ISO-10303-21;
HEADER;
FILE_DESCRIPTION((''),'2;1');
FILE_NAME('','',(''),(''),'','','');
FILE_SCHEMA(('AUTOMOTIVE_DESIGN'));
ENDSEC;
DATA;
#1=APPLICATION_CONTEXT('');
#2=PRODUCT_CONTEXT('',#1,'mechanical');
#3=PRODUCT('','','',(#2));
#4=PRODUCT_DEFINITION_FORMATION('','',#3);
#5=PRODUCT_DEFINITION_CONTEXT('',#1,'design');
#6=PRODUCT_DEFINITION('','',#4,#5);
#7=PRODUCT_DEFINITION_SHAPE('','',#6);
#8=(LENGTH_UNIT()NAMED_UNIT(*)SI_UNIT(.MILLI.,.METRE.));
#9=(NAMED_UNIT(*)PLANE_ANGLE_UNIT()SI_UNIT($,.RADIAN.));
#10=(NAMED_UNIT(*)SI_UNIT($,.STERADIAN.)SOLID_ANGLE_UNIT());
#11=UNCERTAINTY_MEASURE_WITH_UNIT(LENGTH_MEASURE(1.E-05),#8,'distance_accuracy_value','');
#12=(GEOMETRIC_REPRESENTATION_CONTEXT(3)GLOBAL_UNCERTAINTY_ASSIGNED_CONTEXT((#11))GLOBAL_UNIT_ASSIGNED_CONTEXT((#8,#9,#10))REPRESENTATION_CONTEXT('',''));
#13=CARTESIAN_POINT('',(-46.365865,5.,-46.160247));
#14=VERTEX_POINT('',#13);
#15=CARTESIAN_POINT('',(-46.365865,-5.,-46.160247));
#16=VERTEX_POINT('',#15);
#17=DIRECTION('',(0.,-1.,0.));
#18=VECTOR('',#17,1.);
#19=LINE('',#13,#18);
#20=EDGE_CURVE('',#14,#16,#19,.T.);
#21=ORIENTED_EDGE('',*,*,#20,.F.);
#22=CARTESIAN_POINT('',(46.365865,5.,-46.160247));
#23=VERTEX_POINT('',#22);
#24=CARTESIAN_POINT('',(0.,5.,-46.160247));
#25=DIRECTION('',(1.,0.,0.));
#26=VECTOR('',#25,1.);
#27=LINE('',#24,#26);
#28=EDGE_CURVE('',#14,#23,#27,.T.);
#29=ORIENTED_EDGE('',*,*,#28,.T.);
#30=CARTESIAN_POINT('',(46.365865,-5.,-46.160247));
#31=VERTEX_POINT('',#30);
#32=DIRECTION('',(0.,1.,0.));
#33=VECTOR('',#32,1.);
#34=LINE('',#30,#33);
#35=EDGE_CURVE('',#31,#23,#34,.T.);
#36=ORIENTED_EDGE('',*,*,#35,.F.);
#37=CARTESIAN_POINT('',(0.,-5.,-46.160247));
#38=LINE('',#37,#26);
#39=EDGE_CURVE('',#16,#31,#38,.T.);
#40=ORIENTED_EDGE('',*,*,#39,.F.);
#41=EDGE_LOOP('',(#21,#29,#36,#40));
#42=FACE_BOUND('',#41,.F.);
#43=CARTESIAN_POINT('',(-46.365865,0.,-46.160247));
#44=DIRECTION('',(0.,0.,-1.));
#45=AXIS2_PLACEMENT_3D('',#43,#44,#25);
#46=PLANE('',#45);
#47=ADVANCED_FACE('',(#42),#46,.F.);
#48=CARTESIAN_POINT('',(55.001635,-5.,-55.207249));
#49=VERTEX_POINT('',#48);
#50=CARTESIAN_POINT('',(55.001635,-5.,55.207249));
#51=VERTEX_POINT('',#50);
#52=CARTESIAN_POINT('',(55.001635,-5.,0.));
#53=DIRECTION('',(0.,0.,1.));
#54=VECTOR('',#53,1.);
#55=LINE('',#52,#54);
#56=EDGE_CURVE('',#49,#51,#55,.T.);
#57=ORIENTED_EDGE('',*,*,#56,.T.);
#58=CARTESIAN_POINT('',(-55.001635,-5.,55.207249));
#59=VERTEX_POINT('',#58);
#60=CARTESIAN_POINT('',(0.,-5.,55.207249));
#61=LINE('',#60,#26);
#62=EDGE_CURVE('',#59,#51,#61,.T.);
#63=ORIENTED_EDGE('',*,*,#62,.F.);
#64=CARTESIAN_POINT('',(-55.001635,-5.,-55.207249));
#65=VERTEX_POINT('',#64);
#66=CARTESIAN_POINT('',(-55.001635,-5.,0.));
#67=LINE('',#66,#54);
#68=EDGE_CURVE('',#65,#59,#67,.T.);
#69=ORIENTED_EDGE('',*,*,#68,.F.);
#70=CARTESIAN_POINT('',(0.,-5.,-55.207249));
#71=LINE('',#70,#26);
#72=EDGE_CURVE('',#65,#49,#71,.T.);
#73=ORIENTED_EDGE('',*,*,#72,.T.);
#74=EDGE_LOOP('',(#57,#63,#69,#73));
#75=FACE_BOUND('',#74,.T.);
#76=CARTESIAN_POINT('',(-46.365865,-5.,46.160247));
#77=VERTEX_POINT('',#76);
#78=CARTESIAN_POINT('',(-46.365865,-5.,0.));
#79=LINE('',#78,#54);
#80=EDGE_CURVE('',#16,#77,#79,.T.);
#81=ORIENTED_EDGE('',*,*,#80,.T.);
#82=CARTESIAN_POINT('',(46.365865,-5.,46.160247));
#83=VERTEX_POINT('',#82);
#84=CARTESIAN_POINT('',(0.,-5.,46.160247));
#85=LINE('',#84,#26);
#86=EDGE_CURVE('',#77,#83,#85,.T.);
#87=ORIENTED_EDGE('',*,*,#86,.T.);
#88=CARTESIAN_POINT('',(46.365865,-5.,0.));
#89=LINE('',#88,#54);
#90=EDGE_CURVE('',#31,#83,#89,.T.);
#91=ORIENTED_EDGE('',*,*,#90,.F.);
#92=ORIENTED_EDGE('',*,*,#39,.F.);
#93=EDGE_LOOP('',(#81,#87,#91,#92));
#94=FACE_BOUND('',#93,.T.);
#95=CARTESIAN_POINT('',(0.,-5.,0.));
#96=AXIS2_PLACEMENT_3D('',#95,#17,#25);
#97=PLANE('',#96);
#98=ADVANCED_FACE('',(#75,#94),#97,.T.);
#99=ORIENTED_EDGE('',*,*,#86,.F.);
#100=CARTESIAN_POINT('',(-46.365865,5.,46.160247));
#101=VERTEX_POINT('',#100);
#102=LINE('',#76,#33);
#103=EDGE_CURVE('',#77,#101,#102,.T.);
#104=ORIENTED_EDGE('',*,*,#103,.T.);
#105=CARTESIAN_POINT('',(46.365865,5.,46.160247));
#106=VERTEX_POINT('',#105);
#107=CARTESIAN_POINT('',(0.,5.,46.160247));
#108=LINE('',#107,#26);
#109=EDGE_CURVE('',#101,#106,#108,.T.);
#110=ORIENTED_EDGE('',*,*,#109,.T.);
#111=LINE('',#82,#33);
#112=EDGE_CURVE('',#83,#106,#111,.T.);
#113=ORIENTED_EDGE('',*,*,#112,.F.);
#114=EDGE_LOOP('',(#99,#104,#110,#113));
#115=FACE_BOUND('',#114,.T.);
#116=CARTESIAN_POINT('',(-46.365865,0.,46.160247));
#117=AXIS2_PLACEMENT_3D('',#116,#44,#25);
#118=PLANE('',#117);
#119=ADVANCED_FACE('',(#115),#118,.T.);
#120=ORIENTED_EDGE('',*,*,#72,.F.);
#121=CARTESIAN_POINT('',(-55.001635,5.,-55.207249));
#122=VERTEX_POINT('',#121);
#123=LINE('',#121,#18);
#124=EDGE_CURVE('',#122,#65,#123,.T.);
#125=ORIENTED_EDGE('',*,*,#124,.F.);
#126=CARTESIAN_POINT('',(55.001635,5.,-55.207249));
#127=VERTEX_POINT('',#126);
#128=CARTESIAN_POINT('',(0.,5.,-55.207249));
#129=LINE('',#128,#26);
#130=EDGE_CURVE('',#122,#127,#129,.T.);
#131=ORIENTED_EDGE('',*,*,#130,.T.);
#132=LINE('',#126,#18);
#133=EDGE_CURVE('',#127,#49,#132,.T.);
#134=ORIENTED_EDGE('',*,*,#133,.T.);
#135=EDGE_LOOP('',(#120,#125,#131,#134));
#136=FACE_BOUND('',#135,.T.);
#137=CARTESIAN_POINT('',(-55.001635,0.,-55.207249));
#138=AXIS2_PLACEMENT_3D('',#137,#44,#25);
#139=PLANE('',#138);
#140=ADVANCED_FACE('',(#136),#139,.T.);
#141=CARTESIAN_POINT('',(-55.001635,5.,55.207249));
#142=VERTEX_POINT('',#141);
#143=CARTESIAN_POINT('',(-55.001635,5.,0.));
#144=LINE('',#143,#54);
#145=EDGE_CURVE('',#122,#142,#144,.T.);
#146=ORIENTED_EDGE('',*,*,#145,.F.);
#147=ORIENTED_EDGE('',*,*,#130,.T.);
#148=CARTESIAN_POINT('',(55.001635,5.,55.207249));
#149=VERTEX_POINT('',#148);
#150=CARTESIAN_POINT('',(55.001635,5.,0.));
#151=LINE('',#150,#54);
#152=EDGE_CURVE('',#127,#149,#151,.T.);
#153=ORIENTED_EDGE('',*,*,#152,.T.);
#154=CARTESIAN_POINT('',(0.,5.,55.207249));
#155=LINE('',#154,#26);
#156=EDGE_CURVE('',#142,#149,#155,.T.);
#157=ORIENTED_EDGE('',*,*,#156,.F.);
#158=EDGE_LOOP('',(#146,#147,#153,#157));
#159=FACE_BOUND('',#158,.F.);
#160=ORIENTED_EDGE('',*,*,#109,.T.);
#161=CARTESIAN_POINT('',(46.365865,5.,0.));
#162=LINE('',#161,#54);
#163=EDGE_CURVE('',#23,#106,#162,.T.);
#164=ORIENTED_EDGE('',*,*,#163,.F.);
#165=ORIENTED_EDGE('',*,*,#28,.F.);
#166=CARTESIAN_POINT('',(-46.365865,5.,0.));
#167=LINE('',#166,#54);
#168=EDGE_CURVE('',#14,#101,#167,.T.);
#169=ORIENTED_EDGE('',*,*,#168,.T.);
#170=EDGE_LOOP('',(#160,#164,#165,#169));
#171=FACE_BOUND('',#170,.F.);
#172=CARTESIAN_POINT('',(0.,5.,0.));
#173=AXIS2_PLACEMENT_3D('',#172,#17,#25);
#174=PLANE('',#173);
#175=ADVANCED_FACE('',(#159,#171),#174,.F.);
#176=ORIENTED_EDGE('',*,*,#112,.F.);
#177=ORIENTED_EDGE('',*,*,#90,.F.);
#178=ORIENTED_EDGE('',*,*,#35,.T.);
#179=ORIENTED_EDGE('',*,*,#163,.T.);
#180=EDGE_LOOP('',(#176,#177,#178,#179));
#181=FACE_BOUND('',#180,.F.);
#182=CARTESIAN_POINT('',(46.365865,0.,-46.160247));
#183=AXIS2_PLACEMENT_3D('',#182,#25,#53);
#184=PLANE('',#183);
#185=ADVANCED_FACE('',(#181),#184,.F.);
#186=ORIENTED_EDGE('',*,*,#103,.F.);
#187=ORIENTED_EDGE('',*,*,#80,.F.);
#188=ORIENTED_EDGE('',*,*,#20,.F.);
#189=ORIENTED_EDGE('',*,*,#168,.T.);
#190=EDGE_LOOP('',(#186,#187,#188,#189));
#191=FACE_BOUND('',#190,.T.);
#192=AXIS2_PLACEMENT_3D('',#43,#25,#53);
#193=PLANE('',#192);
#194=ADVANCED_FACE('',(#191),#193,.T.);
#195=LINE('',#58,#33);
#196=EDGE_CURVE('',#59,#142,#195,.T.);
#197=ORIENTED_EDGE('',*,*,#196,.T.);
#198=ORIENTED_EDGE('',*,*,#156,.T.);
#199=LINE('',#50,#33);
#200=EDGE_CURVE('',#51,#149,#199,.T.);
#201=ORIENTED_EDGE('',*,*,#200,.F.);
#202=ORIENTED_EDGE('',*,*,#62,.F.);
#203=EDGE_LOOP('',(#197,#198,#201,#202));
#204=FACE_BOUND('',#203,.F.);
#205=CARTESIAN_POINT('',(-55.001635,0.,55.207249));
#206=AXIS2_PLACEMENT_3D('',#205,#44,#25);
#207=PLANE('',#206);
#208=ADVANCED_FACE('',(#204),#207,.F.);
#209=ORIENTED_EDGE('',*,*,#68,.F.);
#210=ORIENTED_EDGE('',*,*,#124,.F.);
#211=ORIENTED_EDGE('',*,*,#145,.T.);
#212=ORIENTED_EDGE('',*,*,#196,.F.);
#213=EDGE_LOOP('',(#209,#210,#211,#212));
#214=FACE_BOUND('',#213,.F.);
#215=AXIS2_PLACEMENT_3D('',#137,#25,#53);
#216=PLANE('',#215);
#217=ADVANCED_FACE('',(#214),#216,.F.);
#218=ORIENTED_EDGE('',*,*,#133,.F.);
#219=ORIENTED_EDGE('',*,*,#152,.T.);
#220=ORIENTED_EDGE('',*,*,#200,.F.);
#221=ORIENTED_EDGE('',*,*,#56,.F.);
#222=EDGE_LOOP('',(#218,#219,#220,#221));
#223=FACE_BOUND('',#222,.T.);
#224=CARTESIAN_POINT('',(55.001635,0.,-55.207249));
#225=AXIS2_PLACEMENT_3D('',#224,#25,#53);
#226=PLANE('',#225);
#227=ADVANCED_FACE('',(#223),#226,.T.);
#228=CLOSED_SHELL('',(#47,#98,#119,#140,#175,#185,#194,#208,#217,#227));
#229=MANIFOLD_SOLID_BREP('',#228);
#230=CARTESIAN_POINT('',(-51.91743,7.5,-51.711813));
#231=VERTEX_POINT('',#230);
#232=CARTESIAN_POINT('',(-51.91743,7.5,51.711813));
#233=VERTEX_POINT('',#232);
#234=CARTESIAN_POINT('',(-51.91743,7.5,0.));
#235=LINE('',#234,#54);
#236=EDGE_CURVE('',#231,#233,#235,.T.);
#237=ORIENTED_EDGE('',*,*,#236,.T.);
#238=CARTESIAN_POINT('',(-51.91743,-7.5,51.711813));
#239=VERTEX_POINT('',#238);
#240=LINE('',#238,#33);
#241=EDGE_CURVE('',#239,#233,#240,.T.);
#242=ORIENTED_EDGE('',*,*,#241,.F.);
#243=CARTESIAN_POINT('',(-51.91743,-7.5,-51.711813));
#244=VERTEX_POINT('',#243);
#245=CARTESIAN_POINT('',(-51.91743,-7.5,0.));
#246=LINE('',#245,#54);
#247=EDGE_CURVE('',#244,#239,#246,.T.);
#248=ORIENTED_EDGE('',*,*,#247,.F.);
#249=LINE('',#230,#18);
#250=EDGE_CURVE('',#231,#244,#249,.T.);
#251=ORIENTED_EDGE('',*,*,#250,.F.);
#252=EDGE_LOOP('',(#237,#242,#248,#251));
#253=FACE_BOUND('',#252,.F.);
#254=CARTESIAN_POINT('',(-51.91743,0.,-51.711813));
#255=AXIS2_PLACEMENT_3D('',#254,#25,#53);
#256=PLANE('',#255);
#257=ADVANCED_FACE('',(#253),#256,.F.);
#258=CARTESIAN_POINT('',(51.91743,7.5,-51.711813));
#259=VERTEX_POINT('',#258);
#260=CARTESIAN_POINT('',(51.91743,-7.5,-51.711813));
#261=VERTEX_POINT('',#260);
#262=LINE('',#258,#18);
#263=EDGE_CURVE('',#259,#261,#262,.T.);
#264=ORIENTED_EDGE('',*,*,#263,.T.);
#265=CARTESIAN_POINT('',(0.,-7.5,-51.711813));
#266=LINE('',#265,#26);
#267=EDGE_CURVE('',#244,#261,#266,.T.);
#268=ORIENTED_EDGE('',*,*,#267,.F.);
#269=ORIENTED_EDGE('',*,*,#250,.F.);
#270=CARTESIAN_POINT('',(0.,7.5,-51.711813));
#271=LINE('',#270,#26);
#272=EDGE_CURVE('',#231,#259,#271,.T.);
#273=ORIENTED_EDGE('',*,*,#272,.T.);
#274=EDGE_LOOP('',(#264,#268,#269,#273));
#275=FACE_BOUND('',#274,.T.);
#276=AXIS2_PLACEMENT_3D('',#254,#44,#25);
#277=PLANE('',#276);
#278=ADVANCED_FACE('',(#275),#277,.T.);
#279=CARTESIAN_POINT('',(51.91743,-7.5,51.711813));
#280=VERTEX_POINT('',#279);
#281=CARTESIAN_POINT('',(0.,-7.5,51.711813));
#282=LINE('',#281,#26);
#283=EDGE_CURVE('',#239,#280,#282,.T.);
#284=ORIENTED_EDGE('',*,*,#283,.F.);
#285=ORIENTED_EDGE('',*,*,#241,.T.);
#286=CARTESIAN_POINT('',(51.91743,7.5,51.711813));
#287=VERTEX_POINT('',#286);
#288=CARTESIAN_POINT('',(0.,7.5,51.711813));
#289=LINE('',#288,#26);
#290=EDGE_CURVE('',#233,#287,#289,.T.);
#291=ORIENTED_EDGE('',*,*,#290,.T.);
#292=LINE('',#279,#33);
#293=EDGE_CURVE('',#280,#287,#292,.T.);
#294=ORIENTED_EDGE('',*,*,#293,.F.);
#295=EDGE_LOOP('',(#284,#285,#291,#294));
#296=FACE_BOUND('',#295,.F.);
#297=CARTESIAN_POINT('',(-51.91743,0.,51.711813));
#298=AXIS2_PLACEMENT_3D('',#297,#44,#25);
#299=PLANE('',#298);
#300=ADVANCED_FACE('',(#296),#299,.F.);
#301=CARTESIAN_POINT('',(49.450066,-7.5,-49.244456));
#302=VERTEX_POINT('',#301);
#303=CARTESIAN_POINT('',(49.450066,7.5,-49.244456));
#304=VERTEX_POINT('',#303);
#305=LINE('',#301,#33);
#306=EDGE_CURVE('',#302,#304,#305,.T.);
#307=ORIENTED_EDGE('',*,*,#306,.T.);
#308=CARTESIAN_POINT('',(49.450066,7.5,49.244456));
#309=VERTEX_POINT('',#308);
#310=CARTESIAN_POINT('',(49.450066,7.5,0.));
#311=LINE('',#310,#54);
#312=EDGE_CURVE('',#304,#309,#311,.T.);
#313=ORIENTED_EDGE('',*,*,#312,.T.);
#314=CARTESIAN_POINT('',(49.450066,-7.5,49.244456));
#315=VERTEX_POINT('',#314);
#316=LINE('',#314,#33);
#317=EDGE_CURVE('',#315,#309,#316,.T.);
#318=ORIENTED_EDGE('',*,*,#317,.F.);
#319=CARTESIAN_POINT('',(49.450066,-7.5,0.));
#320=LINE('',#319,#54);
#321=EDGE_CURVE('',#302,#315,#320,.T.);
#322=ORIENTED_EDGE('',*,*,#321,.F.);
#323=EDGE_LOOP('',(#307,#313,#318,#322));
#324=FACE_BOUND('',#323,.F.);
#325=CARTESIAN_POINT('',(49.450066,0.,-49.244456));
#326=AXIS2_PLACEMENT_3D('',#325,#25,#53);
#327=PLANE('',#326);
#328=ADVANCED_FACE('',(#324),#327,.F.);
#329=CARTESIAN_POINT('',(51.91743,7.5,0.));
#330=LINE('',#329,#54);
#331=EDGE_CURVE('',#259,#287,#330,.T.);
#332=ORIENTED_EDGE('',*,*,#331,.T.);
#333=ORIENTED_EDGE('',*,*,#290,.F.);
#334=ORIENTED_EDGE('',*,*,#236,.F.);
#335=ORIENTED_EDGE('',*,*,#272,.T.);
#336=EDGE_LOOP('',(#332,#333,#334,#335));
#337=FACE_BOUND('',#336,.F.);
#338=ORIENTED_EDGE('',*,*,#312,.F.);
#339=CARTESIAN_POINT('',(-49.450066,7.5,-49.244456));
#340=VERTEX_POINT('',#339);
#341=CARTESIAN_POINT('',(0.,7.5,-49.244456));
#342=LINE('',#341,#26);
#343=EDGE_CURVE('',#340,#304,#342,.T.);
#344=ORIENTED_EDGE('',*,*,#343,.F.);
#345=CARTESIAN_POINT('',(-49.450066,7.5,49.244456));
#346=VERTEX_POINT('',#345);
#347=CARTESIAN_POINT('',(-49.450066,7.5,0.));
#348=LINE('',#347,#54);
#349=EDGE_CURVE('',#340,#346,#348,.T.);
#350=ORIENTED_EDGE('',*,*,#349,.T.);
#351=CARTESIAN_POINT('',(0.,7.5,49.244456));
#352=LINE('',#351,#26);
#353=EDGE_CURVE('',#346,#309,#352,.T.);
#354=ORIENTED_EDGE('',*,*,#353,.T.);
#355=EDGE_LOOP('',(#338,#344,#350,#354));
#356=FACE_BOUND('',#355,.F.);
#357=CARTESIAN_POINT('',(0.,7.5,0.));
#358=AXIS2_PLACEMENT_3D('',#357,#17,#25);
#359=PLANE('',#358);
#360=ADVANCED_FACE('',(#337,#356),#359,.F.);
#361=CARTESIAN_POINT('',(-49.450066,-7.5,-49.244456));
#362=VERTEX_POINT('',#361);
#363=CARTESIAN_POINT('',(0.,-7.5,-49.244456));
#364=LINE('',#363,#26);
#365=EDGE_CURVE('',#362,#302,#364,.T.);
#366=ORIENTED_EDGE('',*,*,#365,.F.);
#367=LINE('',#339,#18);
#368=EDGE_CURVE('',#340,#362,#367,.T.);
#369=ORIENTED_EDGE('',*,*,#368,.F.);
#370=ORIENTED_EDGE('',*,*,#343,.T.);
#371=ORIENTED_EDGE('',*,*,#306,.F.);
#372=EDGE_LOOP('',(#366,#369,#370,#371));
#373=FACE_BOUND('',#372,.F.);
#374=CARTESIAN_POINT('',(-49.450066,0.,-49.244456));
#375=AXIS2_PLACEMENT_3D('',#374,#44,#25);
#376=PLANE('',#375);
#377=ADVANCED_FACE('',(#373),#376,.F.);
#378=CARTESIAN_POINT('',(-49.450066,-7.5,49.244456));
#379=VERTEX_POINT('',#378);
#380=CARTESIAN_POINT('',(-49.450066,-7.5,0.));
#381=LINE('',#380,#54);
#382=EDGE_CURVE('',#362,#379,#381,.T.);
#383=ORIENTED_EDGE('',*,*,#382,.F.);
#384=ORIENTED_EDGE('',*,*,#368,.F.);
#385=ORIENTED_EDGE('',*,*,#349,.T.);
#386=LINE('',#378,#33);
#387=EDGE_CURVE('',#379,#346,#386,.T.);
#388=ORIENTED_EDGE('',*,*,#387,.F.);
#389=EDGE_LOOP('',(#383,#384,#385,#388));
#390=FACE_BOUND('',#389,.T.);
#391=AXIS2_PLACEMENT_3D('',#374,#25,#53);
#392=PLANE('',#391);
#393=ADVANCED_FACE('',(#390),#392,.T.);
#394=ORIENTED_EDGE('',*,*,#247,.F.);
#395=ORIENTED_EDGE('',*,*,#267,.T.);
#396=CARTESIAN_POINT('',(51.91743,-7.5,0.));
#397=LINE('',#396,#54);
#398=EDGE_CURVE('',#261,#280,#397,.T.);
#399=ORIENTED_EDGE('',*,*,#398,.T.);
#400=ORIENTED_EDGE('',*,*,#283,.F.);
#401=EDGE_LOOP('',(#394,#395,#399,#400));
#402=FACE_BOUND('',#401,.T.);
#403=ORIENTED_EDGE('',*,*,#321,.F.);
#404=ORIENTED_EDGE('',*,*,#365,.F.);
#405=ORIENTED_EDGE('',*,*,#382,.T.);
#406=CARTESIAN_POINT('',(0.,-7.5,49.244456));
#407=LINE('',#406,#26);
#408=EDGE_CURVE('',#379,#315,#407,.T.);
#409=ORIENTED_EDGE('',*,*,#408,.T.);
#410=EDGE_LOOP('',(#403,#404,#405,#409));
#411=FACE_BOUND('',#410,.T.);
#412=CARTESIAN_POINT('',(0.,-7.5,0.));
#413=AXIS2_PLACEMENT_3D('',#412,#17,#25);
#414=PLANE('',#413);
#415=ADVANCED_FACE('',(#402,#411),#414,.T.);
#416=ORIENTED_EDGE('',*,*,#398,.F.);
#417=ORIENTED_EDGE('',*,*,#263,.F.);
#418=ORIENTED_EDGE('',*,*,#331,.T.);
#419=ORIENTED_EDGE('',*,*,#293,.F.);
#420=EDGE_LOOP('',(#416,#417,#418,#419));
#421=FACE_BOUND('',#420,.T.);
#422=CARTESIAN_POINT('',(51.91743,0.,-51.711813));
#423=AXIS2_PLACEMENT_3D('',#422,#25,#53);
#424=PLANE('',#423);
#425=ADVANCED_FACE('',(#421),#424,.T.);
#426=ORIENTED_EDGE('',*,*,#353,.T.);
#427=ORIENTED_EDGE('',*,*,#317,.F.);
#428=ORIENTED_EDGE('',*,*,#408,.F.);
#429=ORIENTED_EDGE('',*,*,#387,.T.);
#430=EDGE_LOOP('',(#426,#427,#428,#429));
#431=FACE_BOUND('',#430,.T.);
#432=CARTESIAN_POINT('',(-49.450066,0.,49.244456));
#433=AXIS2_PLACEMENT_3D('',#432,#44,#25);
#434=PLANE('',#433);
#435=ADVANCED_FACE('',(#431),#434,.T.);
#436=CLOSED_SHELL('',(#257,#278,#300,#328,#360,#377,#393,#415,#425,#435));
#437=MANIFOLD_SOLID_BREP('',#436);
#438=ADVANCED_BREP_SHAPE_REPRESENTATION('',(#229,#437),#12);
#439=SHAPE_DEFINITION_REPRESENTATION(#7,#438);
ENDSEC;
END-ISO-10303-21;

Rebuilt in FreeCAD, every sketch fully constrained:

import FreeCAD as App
import Part
import Sketcher


def add_polygon(sketch, points):
    """Adds a closed chain of lines whose ends are joined by coincident constraints."""
    first, n = sketch.GeometryCount, len(points)
    for a, b in zip(points, points[1:] + points[:1]):
        sketch.addGeometry(Part.LineSegment(App.Vector(*a, 0), App.Vector(*b, 0)), False)
    for i in range(n):
        sketch.addConstraint(Sketcher.Constraint("Coincident", first + i, 2, first + (i + 1) % n, 1))

doc = App.newDocument("Part")
params = doc.addObject("Spreadsheet::Sheet", "Params")
for row, (alias, value) in enumerate([
    ("pad1_length", "15 mm"),
    ("pad2_length", "10 mm"),
], start=1):
    params.set(f"A{row}", alias)
    params.set(f"B{row}", "=" + value)
    params.setAlias(f"B{row}", alias)

body = doc.addObject("PartDesign::Body", "Body")

sketch1 = doc.addObject("Sketcher::SketchObject", "Sketch")
body.addObject(sketch1)
sketch1.AttachmentSupport = (doc.XZ_Plane, [""])
sketch1.MapMode = "FlatFace"
add_polygon(sketch1, [(-52, 52), (-52, -52), (52, -52), (52, 52)])
add_polygon(sketch1, [(49, -49), (-49, -49), (-49, 49), (49, 49)])
sketch1.addConstraint(Sketcher.Constraint("Vertical", 0))
sketch1.addConstraint(Sketcher.Constraint("Horizontal", 1))
sketch1.addConstraint(Sketcher.Constraint("Vertical", 2))
sketch1.addConstraint(Sketcher.Constraint("Horizontal", 3))
sketch1.addConstraint(Sketcher.Constraint("Horizontal", 4))
sketch1.addConstraint(Sketcher.Constraint("Vertical", 5))
sketch1.addConstraint(Sketcher.Constraint("Horizontal", 6))
sketch1.addConstraint(Sketcher.Constraint("Vertical", 7))
sketch1.addConstraint(Sketcher.Constraint("Symmetric", 0, 2, 2, 2, -1, 1))
sketch1.addConstraint(Sketcher.Constraint("Symmetric", 4, 2, 6, 2, -1, 1))
sketch1.addConstraint(Sketcher.Constraint("DistanceX", 1, 1, 1, 2, 103.83486))
sketch1.addConstraint(Sketcher.Constraint("DistanceX", 4, 2, 4, 1, 98.900132))
sketch1.addConstraint(Sketcher.Constraint("DistanceY", 5, 1, 5, 2, 98.488912))
sketch1.addConstraint(Sketcher.Constraint("DistanceY", 0, 2, 0, 1, 103.423626))
pad1 = doc.addObject("PartDesign::Pad", "Pad")
body.addObject(pad1)
pad1.Profile = sketch1
pad1.setExpression("Length", "Params.pad1_length")
pad1.Midplane = True
body2 = doc.addObject("PartDesign::Body", "Body001")

sketch2 = doc.addObject("Sketcher::SketchObject", "Sketch001")
body2.addObject(sketch2)
sketch2.AttachmentSupport = (doc.getObject("XZ_Plane001"), [""])
sketch2.MapMode = "FlatFace"
add_polygon(sketch2, [(-55, 55), (-55, -55), (55, -55), (55, 55)])
add_polygon(sketch2, [(46, -46), (-46, -46), (-46, 46), (46, 46)])
sketch2.addConstraint(Sketcher.Constraint("Vertical", 0))
sketch2.addConstraint(Sketcher.Constraint("Horizontal", 1))
sketch2.addConstraint(Sketcher.Constraint("Vertical", 2))
sketch2.addConstraint(Sketcher.Constraint("Horizontal", 3))
sketch2.addConstraint(Sketcher.Constraint("Horizontal", 4))
sketch2.addConstraint(Sketcher.Constraint("Vertical", 5))
sketch2.addConstraint(Sketcher.Constraint("Horizontal", 6))
sketch2.addConstraint(Sketcher.Constraint("Vertical", 7))
sketch2.addConstraint(Sketcher.Constraint("Symmetric", 0, 2, 2, 2, -1, 1))
sketch2.addConstraint(Sketcher.Constraint("Symmetric", 4, 2, 6, 2, -1, 1))
sketch2.addConstraint(Sketcher.Constraint("DistanceY", 0, 2, 4, 2, 9.047002))
sketch2.addConstraint(Sketcher.Constraint("DistanceX", 1, 1, 1, 2, 110.00327))
sketch2.addConstraint(Sketcher.Constraint("DistanceX", 4, 2, 4, 1, 92.73173))
sketch2.addConstraint(Sketcher.Constraint("DistanceY", 0, 2, 0, 1, 110.414498))
pad2 = doc.addObject("PartDesign::Pad", "Pad001")
body2.addObject(pad2)
pad2.Profile = sketch2
pad2.setExpression("Length", "Params.pad2_length")
pad2.Midplane = True

doc.recompute()
